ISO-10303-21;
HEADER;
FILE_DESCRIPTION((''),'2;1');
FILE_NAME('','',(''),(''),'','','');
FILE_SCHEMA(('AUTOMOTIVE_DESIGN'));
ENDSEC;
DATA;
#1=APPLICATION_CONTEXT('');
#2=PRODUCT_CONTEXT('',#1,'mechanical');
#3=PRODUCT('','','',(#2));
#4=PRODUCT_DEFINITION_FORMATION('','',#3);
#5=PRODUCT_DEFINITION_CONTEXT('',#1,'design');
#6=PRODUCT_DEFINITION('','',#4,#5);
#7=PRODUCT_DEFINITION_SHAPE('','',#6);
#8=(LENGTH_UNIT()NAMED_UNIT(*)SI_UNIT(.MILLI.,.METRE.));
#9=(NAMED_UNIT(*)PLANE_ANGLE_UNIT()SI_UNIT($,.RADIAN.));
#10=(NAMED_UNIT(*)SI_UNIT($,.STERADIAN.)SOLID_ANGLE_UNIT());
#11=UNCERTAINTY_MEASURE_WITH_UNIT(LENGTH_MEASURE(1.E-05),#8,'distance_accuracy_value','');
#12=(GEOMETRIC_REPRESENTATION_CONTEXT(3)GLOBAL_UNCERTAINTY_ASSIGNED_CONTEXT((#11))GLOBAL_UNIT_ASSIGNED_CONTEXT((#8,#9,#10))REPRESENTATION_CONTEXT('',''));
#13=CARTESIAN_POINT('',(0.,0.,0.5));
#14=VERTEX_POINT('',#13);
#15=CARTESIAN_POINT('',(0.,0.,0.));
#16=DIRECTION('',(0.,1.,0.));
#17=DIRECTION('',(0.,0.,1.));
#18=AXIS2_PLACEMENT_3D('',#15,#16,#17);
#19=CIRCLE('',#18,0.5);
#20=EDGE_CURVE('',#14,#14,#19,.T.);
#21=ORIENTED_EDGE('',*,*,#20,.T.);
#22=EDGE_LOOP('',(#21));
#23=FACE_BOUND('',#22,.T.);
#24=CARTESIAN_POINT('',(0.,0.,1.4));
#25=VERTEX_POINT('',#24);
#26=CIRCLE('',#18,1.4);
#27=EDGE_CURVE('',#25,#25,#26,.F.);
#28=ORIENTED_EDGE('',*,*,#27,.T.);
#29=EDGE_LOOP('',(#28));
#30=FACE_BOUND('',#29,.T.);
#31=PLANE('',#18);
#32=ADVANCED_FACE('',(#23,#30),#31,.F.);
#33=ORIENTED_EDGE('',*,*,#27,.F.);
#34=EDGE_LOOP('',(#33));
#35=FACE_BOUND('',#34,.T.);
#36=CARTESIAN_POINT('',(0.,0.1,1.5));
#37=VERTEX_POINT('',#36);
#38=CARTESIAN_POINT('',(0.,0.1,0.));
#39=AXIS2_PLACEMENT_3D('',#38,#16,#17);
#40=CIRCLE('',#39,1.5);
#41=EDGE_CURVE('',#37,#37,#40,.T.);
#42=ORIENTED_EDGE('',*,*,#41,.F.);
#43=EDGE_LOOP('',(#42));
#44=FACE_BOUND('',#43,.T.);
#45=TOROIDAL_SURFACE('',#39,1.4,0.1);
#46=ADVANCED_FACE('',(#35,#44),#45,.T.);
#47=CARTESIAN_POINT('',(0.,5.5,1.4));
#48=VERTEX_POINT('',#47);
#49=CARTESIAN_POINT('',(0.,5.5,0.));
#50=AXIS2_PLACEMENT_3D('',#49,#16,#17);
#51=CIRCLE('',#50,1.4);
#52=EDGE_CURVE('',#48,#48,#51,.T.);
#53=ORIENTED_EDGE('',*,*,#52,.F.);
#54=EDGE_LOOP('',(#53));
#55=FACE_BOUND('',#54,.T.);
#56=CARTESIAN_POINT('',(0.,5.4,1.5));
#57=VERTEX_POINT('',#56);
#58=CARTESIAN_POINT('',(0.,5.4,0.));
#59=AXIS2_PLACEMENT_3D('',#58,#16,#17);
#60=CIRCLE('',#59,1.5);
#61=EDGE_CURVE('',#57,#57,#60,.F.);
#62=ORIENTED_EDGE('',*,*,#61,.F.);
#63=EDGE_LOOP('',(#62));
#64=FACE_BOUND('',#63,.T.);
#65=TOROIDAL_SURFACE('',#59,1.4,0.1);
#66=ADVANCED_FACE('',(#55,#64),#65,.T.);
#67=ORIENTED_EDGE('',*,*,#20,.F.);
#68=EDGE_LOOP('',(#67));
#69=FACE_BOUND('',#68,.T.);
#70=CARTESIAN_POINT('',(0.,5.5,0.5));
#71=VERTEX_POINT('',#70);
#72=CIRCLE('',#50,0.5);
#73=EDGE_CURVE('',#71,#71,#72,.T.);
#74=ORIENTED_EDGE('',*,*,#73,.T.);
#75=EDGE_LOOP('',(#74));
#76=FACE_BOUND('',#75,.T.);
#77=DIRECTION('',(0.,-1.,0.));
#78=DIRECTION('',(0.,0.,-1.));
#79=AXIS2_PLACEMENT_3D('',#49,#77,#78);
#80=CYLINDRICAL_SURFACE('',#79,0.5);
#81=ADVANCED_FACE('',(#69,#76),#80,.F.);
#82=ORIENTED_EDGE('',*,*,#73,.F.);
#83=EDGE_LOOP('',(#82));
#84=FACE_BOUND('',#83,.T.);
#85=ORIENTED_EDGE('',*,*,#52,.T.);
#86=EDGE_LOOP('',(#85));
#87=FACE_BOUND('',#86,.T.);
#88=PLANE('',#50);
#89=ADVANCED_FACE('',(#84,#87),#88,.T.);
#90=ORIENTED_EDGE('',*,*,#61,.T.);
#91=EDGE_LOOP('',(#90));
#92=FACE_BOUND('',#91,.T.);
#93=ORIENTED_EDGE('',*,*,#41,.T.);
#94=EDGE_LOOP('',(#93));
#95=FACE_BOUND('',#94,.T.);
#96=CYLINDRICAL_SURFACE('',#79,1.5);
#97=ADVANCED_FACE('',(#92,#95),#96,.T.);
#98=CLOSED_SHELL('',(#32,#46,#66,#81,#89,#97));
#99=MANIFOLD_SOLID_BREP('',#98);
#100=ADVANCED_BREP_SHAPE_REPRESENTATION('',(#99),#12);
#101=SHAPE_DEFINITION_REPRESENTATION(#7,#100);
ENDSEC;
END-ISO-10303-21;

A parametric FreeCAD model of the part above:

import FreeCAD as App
import Part
import Sketcher
from FreeCAD import Vector
Q = App.Units.Quantity


def edges_at(feature, points):
    """Names of the edges that pass closest to the given points."""
    edges = feature.Shape.Edges
    near = lambda p: min(range(len(edges)), key=lambda i: edges[i].distToShape(Part.Vertex(*p))[0])
    return sorted({f"Edge{near(p) + 1}" for p in points})

doc = App.newDocument("Part")
body = doc.addObject("PartDesign::Body", "Body")

# Sketch on XZ plane
sketch1 = doc.addObject("Sketcher::SketchObject", "Sketch")
body.addObject(sketch1)
sketch1.AttachmentSupport = (doc.XZ_Plane, [""])
sketch1.MapMode = "FlatFace"
sketch1.addGeometry(Part.Circle(Vector(0, 0, 0), Vector(0, 0, 1), 1.5), False)
sketch1.addGeometry(Part.Circle(Vector(0, 0, 0), Vector(0, 0, 1), 0.5), False)
sketch1.addConstraint(Sketcher.Constraint("Coincident", 0, 3, -1, 1))
sketch1.addConstraint(Sketcher.Constraint("Coincident", 1, 3, -1, 1))
sketch1.addConstraint(Sketcher.Constraint("Diameter", 0, Q("3 mm")))
sketch1.addConstraint(Sketcher.Constraint("Diameter", 1, Q("1 mm")))
pad1 = doc.addObject("PartDesign::Pad", "Pad")
body.addObject(pad1)
pad1.Profile = sketch1
pad1.Length = 5.5
pad1.Reversed = True
doc.recompute()

fillet = doc.addObject("PartDesign::Fillet", "Fillet")
body.addObject(fillet)
fillet.Base = (pad1, edges_at(pad1, [(0, 0, -1.5), (0, 5.5, -1.5)]))
fillet.Radius = 0.1

doc.recompute()
